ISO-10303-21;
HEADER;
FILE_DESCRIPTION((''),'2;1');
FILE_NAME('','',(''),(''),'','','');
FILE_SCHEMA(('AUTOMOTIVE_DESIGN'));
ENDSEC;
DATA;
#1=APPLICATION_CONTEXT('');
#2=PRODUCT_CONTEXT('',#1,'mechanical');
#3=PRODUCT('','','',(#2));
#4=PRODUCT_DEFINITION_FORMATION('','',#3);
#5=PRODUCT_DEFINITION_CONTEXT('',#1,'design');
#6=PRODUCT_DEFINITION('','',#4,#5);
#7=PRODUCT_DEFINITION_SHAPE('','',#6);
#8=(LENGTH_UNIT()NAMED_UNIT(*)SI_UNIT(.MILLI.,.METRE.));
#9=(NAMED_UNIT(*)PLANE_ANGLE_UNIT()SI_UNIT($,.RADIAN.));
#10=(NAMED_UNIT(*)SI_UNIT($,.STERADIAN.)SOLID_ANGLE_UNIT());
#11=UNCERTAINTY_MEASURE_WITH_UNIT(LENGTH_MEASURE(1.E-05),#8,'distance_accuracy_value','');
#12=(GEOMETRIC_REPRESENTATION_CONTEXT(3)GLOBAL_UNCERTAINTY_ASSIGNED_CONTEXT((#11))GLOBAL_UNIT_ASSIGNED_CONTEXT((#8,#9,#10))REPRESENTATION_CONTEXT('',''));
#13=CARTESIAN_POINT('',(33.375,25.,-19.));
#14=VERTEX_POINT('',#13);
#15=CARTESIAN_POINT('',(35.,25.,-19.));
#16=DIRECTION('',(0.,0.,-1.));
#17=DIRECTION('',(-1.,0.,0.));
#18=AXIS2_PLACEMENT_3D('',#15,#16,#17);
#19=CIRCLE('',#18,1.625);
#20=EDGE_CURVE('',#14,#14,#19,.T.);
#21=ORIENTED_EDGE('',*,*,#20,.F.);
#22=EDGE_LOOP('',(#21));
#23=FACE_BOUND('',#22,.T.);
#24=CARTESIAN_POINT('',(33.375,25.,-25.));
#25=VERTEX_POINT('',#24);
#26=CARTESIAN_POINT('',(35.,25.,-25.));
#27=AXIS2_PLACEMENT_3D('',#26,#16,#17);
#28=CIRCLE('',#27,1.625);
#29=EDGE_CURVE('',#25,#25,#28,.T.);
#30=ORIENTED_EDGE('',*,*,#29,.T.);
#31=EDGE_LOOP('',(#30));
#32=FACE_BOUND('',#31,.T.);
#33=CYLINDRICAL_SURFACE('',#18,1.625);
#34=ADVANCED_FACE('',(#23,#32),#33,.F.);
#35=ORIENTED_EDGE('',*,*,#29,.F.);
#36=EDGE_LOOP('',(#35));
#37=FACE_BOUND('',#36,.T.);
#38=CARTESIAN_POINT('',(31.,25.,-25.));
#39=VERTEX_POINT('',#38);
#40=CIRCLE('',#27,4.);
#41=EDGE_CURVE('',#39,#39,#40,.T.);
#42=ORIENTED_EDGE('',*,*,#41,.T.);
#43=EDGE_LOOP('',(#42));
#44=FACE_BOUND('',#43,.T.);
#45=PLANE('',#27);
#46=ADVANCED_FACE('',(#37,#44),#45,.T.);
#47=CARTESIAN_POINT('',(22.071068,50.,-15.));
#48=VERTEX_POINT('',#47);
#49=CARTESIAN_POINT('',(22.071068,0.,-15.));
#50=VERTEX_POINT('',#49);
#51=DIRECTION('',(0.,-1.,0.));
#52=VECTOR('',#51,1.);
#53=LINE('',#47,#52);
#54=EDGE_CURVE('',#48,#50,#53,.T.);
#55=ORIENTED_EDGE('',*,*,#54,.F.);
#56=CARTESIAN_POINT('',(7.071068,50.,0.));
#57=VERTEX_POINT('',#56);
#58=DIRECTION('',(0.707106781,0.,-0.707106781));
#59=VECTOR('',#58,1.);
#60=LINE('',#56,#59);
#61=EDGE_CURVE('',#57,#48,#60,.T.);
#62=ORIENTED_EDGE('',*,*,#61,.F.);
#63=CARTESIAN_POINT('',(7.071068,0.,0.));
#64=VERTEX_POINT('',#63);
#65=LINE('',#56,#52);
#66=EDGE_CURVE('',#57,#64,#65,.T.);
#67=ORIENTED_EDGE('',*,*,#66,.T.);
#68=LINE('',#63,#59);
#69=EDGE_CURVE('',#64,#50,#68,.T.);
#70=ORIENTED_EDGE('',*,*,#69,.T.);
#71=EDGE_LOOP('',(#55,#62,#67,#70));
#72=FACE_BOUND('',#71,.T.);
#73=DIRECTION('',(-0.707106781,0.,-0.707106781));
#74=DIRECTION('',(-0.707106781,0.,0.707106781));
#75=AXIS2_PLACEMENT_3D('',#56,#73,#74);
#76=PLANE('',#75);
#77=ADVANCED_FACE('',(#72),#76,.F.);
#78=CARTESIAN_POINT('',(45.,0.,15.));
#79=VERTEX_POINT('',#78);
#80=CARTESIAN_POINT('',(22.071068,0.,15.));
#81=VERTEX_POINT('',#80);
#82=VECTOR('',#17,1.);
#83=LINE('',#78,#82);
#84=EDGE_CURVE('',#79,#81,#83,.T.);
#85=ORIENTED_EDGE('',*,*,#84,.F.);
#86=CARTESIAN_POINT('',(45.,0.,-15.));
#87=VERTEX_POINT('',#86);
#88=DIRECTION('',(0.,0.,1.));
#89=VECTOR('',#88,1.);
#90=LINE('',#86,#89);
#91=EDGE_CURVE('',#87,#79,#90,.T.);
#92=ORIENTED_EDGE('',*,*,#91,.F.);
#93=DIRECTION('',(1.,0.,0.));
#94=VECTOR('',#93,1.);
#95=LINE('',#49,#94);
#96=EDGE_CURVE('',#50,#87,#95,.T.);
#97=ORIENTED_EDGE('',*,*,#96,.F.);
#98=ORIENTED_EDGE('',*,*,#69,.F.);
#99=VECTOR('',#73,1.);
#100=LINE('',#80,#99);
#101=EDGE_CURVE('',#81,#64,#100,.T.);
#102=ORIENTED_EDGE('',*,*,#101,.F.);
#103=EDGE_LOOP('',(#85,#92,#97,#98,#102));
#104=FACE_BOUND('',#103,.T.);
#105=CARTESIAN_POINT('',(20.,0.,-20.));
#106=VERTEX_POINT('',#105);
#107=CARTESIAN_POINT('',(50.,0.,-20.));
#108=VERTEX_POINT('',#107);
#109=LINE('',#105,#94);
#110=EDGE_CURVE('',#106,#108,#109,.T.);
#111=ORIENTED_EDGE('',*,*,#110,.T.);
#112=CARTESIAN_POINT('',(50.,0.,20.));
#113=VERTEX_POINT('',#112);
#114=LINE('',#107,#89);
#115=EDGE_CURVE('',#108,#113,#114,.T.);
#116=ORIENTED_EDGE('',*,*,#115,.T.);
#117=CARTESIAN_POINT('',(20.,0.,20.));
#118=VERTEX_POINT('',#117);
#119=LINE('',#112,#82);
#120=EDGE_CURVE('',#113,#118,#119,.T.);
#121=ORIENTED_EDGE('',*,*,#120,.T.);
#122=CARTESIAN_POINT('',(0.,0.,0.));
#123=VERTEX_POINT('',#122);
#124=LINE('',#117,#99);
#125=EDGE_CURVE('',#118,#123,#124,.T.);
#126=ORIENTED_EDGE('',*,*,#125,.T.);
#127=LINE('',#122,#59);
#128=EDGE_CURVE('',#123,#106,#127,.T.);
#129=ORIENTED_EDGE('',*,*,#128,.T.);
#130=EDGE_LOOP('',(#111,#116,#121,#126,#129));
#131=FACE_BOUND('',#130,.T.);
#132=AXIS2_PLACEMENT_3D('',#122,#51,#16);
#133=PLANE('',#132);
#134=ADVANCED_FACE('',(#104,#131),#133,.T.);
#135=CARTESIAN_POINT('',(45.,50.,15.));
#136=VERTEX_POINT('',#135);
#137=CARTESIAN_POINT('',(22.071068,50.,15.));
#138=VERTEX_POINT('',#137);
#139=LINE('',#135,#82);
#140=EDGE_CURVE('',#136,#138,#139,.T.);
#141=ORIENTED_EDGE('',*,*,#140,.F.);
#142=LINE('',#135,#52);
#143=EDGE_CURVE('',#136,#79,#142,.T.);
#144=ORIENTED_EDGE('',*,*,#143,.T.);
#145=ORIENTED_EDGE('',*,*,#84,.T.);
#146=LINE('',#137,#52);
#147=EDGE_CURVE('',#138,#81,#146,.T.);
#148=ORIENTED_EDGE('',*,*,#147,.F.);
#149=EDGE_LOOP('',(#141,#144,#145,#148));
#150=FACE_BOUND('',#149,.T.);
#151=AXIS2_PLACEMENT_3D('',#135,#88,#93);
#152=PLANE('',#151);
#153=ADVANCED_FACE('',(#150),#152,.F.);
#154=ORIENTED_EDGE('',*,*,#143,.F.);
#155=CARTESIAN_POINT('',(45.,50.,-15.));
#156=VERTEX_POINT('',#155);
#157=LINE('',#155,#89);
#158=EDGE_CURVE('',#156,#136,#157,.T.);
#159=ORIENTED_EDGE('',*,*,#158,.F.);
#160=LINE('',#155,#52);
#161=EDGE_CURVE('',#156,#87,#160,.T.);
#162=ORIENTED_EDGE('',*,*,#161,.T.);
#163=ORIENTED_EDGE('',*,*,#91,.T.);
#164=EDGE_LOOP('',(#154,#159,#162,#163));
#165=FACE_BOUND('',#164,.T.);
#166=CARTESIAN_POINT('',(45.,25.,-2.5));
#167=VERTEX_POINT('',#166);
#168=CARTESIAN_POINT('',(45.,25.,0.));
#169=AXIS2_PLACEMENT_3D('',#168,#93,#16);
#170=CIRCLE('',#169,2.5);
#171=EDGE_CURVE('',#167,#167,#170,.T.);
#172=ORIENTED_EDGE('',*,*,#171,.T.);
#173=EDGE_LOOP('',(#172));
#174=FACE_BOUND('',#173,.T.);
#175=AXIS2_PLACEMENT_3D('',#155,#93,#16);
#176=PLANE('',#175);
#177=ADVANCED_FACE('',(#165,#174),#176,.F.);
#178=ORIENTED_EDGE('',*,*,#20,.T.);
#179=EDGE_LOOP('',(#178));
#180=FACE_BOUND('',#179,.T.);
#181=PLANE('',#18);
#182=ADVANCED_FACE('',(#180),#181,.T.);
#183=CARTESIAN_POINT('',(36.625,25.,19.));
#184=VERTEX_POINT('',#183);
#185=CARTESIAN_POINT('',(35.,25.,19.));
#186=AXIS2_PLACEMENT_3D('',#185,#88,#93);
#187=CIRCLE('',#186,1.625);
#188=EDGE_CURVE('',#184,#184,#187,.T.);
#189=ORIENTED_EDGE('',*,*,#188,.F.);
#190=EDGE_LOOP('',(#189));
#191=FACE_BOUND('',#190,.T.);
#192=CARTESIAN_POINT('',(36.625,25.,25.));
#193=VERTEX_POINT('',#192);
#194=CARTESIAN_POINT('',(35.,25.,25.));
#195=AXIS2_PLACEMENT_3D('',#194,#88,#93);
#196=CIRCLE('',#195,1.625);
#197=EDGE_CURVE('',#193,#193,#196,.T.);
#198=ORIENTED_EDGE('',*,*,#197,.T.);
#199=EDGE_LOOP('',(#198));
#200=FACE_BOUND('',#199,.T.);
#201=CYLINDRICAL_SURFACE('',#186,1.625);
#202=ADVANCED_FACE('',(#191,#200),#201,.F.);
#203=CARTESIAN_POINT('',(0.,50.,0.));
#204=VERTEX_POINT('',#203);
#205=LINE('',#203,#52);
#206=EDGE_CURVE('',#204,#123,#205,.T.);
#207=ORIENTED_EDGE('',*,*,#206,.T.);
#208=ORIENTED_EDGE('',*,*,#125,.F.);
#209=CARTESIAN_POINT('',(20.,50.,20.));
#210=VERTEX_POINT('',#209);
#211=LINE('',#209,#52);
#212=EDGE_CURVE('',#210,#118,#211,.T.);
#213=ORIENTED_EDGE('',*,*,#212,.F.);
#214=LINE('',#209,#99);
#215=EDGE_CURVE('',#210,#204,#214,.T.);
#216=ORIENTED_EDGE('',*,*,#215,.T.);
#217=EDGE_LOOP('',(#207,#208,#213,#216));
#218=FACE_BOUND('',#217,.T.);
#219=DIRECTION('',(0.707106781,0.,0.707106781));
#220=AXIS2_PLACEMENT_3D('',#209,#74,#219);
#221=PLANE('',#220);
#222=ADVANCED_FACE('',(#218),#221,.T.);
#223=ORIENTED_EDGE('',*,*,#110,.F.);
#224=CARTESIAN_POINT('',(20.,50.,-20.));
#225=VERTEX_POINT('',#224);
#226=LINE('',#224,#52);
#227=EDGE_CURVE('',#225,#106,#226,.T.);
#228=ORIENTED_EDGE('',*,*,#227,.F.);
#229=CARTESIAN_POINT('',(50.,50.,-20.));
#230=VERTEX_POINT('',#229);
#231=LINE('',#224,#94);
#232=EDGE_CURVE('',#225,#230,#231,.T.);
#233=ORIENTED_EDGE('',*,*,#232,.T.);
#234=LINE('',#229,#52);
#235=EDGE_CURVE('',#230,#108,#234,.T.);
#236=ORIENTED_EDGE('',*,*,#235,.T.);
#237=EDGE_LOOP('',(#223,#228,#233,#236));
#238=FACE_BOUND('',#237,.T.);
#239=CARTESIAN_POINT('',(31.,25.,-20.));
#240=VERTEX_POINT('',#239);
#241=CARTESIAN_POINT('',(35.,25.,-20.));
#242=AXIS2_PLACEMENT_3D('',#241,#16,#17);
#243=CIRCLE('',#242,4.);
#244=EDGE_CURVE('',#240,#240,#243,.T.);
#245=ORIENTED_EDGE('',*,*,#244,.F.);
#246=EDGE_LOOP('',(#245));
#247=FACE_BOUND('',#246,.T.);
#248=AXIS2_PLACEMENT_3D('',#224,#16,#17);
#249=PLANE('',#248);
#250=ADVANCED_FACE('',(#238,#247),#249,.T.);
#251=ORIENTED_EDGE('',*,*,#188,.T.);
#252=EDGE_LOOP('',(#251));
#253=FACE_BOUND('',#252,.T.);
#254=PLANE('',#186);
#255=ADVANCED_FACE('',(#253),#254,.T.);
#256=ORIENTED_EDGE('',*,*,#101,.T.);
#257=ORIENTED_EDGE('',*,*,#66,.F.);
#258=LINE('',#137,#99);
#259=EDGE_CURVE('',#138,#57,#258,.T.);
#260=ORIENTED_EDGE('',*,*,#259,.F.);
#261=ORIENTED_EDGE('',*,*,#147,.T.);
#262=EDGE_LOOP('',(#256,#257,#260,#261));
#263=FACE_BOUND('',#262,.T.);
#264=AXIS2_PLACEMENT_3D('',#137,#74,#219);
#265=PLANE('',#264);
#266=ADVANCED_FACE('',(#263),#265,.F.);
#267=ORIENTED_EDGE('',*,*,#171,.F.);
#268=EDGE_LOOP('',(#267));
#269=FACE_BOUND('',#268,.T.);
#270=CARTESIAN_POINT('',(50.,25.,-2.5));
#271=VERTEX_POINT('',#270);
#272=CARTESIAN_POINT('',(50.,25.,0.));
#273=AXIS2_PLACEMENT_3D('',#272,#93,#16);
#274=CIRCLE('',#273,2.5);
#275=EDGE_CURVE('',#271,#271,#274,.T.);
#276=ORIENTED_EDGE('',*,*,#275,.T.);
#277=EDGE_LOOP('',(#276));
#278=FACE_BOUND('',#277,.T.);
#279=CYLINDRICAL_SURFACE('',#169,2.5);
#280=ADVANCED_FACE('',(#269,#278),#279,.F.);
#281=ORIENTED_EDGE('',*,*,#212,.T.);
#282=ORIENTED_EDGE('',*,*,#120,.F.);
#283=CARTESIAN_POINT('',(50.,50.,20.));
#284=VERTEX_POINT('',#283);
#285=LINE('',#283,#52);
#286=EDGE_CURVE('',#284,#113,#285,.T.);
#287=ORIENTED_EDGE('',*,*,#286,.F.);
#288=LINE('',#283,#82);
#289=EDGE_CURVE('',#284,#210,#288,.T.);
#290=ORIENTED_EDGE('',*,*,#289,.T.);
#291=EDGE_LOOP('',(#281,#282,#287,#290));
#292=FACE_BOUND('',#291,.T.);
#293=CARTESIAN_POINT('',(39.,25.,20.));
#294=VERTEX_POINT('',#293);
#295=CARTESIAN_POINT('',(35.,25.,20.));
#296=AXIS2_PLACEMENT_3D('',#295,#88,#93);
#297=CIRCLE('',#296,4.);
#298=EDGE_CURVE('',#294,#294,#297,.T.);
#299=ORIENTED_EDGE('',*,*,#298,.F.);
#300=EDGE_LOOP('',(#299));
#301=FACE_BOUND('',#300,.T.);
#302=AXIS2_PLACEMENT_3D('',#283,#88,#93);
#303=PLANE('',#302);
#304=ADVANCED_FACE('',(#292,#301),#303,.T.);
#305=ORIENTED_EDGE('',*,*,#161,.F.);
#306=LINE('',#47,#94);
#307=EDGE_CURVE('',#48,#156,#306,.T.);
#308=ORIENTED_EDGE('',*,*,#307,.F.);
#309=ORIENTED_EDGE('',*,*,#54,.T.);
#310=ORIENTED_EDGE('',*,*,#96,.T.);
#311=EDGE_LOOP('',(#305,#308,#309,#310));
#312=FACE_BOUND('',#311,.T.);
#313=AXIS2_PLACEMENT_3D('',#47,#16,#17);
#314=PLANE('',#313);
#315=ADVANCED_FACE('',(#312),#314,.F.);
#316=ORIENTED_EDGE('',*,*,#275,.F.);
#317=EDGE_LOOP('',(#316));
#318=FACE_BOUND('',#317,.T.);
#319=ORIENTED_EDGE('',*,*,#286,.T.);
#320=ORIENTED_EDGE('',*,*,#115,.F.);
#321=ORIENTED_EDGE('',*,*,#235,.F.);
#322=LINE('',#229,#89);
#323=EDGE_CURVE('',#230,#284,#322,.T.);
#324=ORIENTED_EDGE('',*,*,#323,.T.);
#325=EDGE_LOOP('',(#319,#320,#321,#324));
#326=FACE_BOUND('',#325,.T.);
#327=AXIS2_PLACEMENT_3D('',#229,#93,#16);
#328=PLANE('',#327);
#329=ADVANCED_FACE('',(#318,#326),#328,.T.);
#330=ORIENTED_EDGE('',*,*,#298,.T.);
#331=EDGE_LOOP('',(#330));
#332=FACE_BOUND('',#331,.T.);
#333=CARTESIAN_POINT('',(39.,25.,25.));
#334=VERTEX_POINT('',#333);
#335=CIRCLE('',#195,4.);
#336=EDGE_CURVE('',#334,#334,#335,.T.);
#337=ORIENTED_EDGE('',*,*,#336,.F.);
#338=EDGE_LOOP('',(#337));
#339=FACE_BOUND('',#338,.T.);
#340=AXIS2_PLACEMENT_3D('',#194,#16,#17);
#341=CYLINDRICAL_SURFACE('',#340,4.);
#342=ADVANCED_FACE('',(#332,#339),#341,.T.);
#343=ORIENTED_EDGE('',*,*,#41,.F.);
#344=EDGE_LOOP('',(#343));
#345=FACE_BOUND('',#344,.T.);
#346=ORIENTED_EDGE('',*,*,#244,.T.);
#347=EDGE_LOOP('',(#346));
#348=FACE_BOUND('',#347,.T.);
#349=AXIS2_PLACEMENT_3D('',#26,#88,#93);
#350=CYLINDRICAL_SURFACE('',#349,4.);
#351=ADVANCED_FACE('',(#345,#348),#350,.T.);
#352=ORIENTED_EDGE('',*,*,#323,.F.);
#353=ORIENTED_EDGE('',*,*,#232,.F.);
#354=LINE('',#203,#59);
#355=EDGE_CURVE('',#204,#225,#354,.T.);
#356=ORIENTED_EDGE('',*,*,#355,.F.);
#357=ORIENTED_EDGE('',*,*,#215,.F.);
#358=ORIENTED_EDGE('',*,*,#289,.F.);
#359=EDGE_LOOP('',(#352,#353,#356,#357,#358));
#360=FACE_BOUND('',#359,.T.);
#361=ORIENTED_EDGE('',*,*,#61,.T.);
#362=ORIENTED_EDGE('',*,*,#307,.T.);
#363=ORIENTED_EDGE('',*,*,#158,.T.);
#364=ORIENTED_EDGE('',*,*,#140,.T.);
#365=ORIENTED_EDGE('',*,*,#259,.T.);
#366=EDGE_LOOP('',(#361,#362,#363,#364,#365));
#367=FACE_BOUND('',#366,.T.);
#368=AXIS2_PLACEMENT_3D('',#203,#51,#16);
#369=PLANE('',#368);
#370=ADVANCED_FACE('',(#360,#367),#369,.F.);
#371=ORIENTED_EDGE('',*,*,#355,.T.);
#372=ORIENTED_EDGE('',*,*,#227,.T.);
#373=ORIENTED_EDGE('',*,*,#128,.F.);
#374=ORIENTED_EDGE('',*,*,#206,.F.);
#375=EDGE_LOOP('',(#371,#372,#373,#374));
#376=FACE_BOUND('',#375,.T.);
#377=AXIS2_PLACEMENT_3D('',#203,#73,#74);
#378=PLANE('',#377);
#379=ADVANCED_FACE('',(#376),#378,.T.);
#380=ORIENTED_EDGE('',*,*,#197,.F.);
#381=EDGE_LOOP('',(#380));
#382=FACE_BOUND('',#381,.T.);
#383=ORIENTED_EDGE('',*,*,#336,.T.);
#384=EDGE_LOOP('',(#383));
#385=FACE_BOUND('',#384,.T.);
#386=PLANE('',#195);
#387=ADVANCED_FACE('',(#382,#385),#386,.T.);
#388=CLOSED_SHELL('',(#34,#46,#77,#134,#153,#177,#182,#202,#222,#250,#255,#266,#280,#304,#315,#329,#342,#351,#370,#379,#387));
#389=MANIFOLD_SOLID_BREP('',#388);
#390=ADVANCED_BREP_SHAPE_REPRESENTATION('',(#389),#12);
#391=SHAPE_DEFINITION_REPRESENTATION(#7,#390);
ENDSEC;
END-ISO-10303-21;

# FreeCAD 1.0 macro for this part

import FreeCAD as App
import Part
import Sketcher
Q = App.Units.Quantity

doc = App.newDocument("Part")
params = doc.addObject("Spreadsheet::Sheet", "Params")
for row, (alias, value) in enumerate([
    ("sketch1_width", "30 mm"),
    ("sketch1_height", "40 mm"),
    ("pad1_length", "50 mm"),
    ("sketch2_diameter", "5 mm"),
    ("pocket1_length", "5 mm"),
    ("sketch3_diameter", "8 mm"),
    ("pad2_length", "5 mm"),
    ("sketch4_diameter", "8 mm"),
    ("pad3_length", "5 mm"),
    ("sketch5_diameter", "3.25 mm"),
    ("pocket2_length", "6 mm"),
    ("sketch6_diameter", "3.25 mm"),
    ("pocket3_length", "6 mm"),
], start=1):
    params.set(f"A{row}", alias)
    params.set(f"B{row}", "=" + value)
    params.setAlias(f"B{row}", alias)

body = doc.addObject("PartDesign::Body", "Body")

# Sketch on XZ plane
sketch1 = body.newObject("Sketcher::SketchObject", "Sketch")
sketch1.AttachmentSupport = (doc.getObject("XZ_Plane"), [""])
sketch1.MapMode = "FlatFace"
sketch1.addGeometry(Part.LineSegment(App.Vector(20, -20, 0), App.Vector(0, 0, 0)), False)
sketch1.addGeometry(Part.LineSegment(App.Vector(0, 0, 0), App.Vector(20, 20, 0)), False)
sketch1.addGeometry(Part.LineSegment(App.Vector(20, 20, 0), App.Vector(50, 20, 0)), False)
sketch1.addGeometry(Part.LineSegment(App.Vector(50, 20, 0), App.Vector(50, -20, 0)), False)
sketch1.addGeometry(Part.LineSegment(App.Vector(50, -20, 0), App.Vector(20, -20, 0)), False)
sketch1.addGeometry(Part.LineSegment(App.Vector(7, 0, 0), App.Vector(22, -15, 0)), False)
sketch1.addGeometry(Part.LineSegment(App.Vector(22, -15, 0), App.Vector(45, -15, 0)), False)
sketch1.addGeometry(Part.LineSegment(App.Vector(45, -15, 0), App.Vector(45, 15, 0)), False)
sketch1.addGeometry(Part.LineSegment(App.Vector(45, 15, 0), App.Vector(22, 15, 0)), False)
sketch1.addGeometry(Part.LineSegment(App.Vector(22, 15, 0), App.Vector(7, 0, 0)), False)
sketch1.addConstraint(Sketcher.Constraint("Coincident", 0, 2, 1, 1))
sketch1.addConstraint(Sketcher.Constraint("Coincident", 1, 2, 2, 1))
sketch1.addConstraint(Sketcher.Constraint("Coincident", 2, 2, 3, 1))
sketch1.addConstraint(Sketcher.Constraint("Coincident", 3, 2, 4, 1))
sketch1.addConstraint(Sketcher.Constraint("Coincident", 4, 2, 0, 1))
sketch1.addConstraint(Sketcher.Constraint("Coincident", 5, 2, 6, 1))
sketch1.addConstraint(Sketcher.Constraint("Coincident", 6, 2, 7, 1))
sketch1.addConstraint(Sketcher.Constraint("Coincident", 7, 2, 8, 1))
sketch1.addConstraint(Sketcher.Constraint("Coincident", 8, 2, 9, 1))
sketch1.addConstraint(Sketcher.Constraint("Coincident", 9, 2, 5, 1))
sketch1.addConstraint(Sketcher.Constraint("Horizontal", 2))
sketch1.addConstraint(Sketcher.Constraint("Vertical", 3))
sketch1.addConstraint(Sketcher.Constraint("Horizontal", 4))
sketch1.addConstraint(Sketcher.Constraint("Horizontal", 6))
sketch1.addConstraint(Sketcher.Constraint("Vertical", 7))
sketch1.addConstraint(Sketcher.Constraint("Horizontal", 8))
sketch1.addConstraint(Sketcher.Constraint("Coincident", 0, 2, -1, 1))
sketch1.addConstraint(Sketcher.Constraint("Symmetric", 1, 2, 4, 2, -1))
sketch1.addConstraint(Sketcher.Constraint("Symmetric", 5, 2, 8, 2, -1))
sketch1.addConstraint(Sketcher.Constraint("PointOnObject", 9, 2, -1))
sketch1.addConstraint(Sketcher.Constraint("Perpendicular", 0, 1))
sketch1.addConstraint(Sketcher.Constraint("Perpendicular", 1, 5))
sketch1.addConstraint(Sketcher.Constraint("Equal", 4, 7))
sketch1.addConstraint(Sketcher.Constraint("DistanceX", 2, 1, 2, 2, Q("30 mm")))
sketch1.addConstraint(Sketcher.Constraint("DistanceY", 3, 2, 3, 1, Q("40 mm")))
sketch1.addConstraint(Sketcher.Constraint("DistanceX", -1, 1, 6, 2, Q("45 mm")))
sketch1.addConstraint(Sketcher.Constraint("DistanceX", 6, 1, 6, 2, Q("22.928932 mm")))
sketch1.setExpression("Constraints[23]", "Params.sketch1_width")
sketch1.setExpression("Constraints[24]", "Params.sketch1_height")
pad1 = body.newObject("PartDesign::Pad", "Pad")
pad1.Profile = sketch1
pad1.setExpression("Length", "Params.pad1_length")
pad1.Reversed = True

# Sketch on YZ plane
sketch2 = body.newObject("Sketcher::SketchObject", "Sketch001")
sketch2.AttachmentSupport = (doc.getObject("YZ_Plane"), [""])
sketch2.MapMode = "FlatFace"
sketch2.AttachmentOffset = App.Placement(App.Vector(0, 0, 50), App.Rotation())
sketch2.addGeometry(Part.Circle(App.Vector(25, 0, 0), App.Vector(0, 0, 1), 2.5), False)
sketch2.addConstraint(Sketcher.Constraint("PointOnObject", 0, 3, -1))
sketch2.addConstraint(Sketcher.Constraint("Diameter", 0, Q("5 mm")))
sketch2.addConstraint(Sketcher.Constraint("DistanceX", -1, 1, 0, 3, Q("25 mm")))
sketch2.setExpression("Constraints[1]", "Params.sketch2_diameter")
pocket1 = body.newObject("PartDesign::Pocket", "Pocket")
pocket1.Profile = sketch2
pocket1.setExpression("Length", "Params.pocket1_length")

# Sketch on XY plane
sketch3 = body.newObject("Sketcher::SketchObject", "Sketch002")
sketch3.AttachmentSupport = (doc.getObject("XY_Plane"), [""])
sketch3.MapMode = "FlatFace"
sketch3.AttachmentOffset = App.Placement(App.Vector(0, 0, 20), App.Rotation())
sketch3.addGeometry(Part.Circle(App.Vector(35, 25, 0), App.Vector(0, 0, 1), 4), False)
sketch3.addConstraint(Sketcher.Constraint("Diameter", 0, Q("8 mm")))
sketch3.addConstraint(Sketcher.Constraint("DistanceX", -1, 1, 0, 3, Q("35 mm")))
sketch3.addConstraint(Sketcher.Constraint("DistanceY", -1, 1, 0, 3, Q("25 mm")))
sketch3.setExpression("Constraints[0]", "Params.sketch3_diameter")
pad2 = body.newObject("PartDesign::Pad", "Pad001")
pad2.Profile = sketch3
pad2.setExpression("Length", "Params.pad2_length")

# Sketch on XY plane
sketch4 = body.newObject("Sketcher::SketchObject", "Sketch003")
sketch4.AttachmentSupport = (doc.getObject("XY_Plane"), [""])
sketch4.MapMode = "FlatFace"
sketch4.AttachmentOffset = App.Placement(App.Vector(0, 0, -25), App.Rotation())
sketch4.addGeometry(Part.Circle(App.Vector(35, 25, 0), App.Vector(0, 0, 1), 4), False)
sketch4.addConstraint(Sketcher.Constraint("Diameter", 0, Q("8 mm")))
sketch4.addConstraint(Sketcher.Constraint("DistanceX", -1, 1, 0, 3, Q("35 mm")))
sketch4.addConstraint(Sketcher.Constraint("DistanceY", -1, 1, 0, 3, Q("25 mm")))
sketch4.setExpression("Constraints[0]", "Params.sketch4_diameter")
pad3 = body.newObject("PartDesign::Pad", "Pad002")
pad3.Profile = sketch4
pad3.setExpression("Length", "Params.pad3_length")

# Sketch on XY plane
sketch5 = body.newObject("Sketcher::SketchObject", "Sketch004")
sketch5.AttachmentSupport = (doc.getObject("XY_Plane"), [""])
sketch5.MapMode = "FlatFace"
sketch5.AttachmentOffset = App.Placement(App.Vector(0, 0, 25), App.Rotation())
sketch5.addGeometry(Part.Circle(App.Vector(35, 25, 0), App.Vector(0, 0, 1), 1.6), False)
sketch5.addConstraint(Sketcher.Constraint("Diameter", 0, Q("3.25 mm")))
sketch5.addConstraint(Sketcher.Constraint("DistanceX", -1, 1, 0, 3, Q("35 mm")))
sketch5.addConstraint(Sketcher.Constraint("DistanceY", -1, 1, 0, 3, Q("25 mm")))
sketch5.setExpression("Constraints[0]", "Params.sketch5_diameter")
pocket2 = body.newObject("PartDesign::Pocket", "Pocket001")
pocket2.Profile = sketch5
pocket2.setExpression("Length", "Params.pocket2_length")

# Sketch on XY plane
sketch6 = body.newObject("Sketcher::SketchObject", "Sketch005")
sketch6.AttachmentSupport = (doc.getObject("XY_Plane"), [""])
sketch6.MapMode = "FlatFace"
sketch6.AttachmentOffset = App.Placement(App.Vector(0, 0, -19), App.Rotation())
sketch6.addGeometry(Part.Circle(App.Vector(35, 25, 0), App.Vector(0, 0, 1), 1.6), False)
sketch6.addConstraint(Sketcher.Constraint("Diameter", 0, Q("3.25 mm")))
sketch6.addConstraint(Sketcher.Constraint("DistanceX", -1, 1, 0, 3, Q("35 mm")))
sketch6.addConstraint(Sketcher.Constraint("DistanceY", -1, 1, 0, 3, Q("25 mm")))
sketch6.setExpression("Constraints[0]", "Params.sketch6_diameter")
pocket3 = body.newObject("PartDesign::Pocket", "Pocket002")
pocket3.Profile = sketch6
pocket3.setExpression("Length", "Params.pocket3_length")

doc.recompute()
